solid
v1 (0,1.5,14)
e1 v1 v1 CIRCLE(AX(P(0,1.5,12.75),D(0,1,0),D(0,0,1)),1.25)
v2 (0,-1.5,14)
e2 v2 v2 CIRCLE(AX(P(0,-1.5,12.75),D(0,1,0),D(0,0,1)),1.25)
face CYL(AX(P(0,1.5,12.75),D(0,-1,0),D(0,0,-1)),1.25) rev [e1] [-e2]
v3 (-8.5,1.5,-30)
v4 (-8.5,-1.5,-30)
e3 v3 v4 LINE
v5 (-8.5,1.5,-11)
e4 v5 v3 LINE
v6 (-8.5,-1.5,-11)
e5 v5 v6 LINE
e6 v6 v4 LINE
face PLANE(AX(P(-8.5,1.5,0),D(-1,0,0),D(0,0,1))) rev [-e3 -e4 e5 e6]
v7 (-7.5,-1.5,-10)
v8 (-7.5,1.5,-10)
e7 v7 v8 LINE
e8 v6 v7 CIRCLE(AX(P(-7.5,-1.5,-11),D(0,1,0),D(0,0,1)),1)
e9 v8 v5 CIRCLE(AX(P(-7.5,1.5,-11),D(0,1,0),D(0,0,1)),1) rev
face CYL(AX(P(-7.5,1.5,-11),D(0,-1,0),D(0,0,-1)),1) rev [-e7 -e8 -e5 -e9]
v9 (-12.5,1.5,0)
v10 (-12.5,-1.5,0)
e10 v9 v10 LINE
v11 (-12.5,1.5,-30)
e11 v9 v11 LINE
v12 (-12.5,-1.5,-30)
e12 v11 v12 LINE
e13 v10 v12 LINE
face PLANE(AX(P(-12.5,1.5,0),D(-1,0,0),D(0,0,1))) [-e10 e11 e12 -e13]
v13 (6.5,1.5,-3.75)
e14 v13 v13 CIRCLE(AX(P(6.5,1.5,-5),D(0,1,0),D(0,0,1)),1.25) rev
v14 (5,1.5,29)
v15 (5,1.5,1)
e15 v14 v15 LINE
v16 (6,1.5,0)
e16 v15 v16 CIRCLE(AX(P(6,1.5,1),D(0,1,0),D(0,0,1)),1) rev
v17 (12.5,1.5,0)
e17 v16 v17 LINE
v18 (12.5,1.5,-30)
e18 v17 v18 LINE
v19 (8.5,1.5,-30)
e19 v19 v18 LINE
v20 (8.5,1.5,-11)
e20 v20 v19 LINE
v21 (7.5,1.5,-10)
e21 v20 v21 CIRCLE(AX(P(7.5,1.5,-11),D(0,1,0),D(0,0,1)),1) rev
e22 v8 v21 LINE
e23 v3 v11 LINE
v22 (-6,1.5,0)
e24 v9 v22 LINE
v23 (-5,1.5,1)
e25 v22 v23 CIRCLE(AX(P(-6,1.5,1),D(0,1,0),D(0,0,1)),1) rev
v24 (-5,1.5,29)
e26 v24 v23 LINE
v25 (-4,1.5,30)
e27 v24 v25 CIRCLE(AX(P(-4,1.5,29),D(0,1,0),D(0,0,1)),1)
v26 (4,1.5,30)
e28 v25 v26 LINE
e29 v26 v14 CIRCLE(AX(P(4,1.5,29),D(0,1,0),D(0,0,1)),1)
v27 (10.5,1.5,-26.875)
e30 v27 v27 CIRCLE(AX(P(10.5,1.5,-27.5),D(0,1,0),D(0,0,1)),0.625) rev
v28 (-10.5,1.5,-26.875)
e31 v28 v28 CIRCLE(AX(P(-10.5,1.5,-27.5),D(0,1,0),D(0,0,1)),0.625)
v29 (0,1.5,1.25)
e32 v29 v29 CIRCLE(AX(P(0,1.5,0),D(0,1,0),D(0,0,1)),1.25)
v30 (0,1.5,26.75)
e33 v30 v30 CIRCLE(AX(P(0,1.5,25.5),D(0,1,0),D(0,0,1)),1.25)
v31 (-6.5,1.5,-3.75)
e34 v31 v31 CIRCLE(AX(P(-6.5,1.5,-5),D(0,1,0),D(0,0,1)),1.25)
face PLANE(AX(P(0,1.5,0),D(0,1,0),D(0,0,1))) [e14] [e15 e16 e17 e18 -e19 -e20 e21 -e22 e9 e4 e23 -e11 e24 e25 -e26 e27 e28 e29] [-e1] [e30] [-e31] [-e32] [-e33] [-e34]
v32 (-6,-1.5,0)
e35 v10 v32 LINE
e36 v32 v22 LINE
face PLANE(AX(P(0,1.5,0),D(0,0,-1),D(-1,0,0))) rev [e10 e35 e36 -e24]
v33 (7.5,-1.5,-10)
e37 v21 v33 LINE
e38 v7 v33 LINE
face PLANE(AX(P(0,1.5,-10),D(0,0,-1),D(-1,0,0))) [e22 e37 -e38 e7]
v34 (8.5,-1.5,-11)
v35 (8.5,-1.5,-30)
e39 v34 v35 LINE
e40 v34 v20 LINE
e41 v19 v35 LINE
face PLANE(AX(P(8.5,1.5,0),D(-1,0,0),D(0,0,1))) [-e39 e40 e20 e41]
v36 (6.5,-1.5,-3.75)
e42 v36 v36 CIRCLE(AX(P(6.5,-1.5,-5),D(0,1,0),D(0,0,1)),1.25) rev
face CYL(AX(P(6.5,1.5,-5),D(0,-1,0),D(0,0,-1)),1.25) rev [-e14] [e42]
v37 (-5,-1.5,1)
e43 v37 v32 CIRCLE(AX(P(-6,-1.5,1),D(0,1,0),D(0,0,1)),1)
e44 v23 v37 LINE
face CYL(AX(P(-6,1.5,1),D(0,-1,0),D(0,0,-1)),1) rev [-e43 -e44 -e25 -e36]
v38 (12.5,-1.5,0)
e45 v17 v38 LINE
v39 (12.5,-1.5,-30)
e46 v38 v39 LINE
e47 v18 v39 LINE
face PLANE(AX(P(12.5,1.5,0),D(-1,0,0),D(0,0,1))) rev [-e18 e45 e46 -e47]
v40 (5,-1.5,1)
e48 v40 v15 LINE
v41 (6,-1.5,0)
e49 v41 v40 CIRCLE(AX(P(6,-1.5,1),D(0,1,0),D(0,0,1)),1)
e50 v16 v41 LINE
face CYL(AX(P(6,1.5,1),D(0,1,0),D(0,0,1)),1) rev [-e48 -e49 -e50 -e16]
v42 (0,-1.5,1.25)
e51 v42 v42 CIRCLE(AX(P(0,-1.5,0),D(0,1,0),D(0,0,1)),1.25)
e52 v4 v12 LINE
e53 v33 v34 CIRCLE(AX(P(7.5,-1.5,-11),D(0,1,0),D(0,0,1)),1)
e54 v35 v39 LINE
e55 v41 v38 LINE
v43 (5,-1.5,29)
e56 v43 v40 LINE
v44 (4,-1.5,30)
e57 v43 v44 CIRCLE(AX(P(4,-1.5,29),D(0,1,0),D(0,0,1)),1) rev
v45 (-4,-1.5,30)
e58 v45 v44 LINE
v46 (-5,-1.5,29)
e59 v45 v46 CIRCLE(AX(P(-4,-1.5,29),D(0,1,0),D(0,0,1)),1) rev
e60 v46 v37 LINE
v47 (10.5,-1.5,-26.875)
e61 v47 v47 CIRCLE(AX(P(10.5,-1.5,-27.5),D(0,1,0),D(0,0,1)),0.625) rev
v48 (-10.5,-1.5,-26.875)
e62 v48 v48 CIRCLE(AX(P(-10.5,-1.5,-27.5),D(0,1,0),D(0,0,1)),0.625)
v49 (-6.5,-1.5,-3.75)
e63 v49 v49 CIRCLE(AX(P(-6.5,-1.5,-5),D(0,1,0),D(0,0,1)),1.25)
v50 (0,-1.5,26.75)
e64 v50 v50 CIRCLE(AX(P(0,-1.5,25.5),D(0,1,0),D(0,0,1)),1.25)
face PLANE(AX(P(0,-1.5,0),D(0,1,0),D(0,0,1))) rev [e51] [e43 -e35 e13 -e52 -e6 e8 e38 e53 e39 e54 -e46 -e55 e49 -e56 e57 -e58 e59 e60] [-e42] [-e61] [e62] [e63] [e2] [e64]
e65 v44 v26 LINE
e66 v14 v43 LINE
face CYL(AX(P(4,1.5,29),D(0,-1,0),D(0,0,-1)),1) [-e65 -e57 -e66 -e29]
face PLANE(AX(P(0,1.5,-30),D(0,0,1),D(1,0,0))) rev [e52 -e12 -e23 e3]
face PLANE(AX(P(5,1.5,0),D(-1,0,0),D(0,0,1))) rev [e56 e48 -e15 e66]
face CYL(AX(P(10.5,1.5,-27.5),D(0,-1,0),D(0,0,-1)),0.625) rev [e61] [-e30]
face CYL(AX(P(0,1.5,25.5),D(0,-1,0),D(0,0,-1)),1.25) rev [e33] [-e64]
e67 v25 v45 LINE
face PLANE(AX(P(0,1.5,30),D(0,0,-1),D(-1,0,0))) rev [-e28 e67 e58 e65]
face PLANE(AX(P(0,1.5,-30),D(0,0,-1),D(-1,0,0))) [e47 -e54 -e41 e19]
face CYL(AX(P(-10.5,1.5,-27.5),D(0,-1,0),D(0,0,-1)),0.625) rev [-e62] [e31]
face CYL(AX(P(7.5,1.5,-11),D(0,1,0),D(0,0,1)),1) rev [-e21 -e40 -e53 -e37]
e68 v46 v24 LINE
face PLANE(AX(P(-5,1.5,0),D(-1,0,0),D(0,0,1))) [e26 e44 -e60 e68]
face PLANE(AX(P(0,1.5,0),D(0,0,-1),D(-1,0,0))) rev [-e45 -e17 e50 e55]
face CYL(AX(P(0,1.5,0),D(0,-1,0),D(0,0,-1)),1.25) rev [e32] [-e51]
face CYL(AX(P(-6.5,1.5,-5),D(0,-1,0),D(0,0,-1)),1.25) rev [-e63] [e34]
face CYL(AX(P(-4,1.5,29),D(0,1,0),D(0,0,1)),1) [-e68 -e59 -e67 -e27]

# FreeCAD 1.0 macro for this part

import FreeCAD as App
import Part
import Sketcher

V = App.Vector


def edges_at(feature, points):
    """Names of the edges that pass closest to the given points."""
    edges = feature.Shape.Edges
    near = lambda p: min(range(len(edges)), key=lambda i: edges[i].distToShape(Part.Vertex(*p))[0])
    return sorted({f"Edge{near(p) + 1}" for p in points})

doc = App.newDocument("Part")
params = doc.addObject("Spreadsheet::Sheet", "Params")
for row, (alias, value) in enumerate([
    ("sketch1_diameter", "2.5 mm"),
    ("sketch1_diameter2", "1.25 mm"),
    ("sketch1_width", "10 mm"),
    ("sketch1_width2", "4 mm"),
    ("sketch1_width3", "17 mm"),
    ("pad1_length", "3 mm"),
    ("fillet_radius", "1 mm"),
], start=1):
    params.set(f"A{row}", alias)
    params.set(f"B{row}", "=" + value)
    params.setAlias(f"B{row}", alias)

body = doc.addObject("PartDesign::Body", "Body")

# Sketch on XZ plane
sketch1 = body.newObject("Sketcher::SketchObject", "Sketch")
sketch1.AttachmentSupport = (doc.getObject("XZ_Plane"), [""])
sketch1.MapMode = "FlatFace"
sketch1.addGeometry(Part.LineSegment(V(-5, 0, 0), V(-5, 30, 0)), False)
sketch1.addGeometry(Part.LineSegment(V(-5, 30, 0), V(5, 30, 0)), False)
sketch1.addGeometry(Part.LineSegment(V(5, 30, 0), V(5, 0, 0)), False)
sketch1.addGeometry(Part.LineSegment(V(5, 0, 0), V(12.5, 0, 0)), False)
sketch1.addGeometry(Part.LineSegment(V(12.5, 0, 0), V(12.5, -30, 0)), False)
sketch1.addGeometry(Part.LineSegment(V(12.5, -30, 0), V(8.5, -30, 0)), False)
sketch1.addGeometry(Part.LineSegment(V(8.5, -30, 0), V(8.5, -10, 0)), False)
sketch1.addGeometry(Part.LineSegment(V(8.5, -10, 0), V(-8.5, -10, 0)), False)
sketch1.addGeometry(Part.LineSegment(V(-8.5, -10, 0), V(-8.5, -30, 0)), False)
sketch1.addGeometry(Part.LineSegment(V(-8.5, -30, 0), V(-12.5, -30, 0)), False)
sketch1.addGeometry(Part.LineSegment(V(-12.5, -30, 0), V(-12.5, 0, 0)), False)
sketch1.addGeometry(Part.LineSegment(V(-12.5, 0, 0), V(-5, 0, 0)), False)
sketch1.addGeometry(Part.Circle(V(0, 25.5, 0), V(0, 0, 1), 1.25), False)
sketch1.addGeometry(Part.Circle(V(0, 12.75, 0), V(0, 0, 1), 1.25), False)
sketch1.addGeometry(Part.Circle(V(0, 0, 0), V(0, 0, 1), 1.25), False)
sketch1.addGeometry(Part.Circle(V(-6.5, -5, 0), V(0, 0, 1), 1.25), False)
sketch1.addGeometry(Part.Circle(V(-10.5, -27.5, 0), V(0, 0, 1), 0.625), False)
sketch1.addGeometry(Part.Circle(V(6.5, -5, 0), V(0, 0, 1), 1.25), False)
sketch1.addGeometry(Part.Circle(V(10.5, -27.5, 0), V(0, 0, 1), 0.625), False)
sketch1.addConstraint(Sketcher.Constraint("Coincident", 0, 2, 1, 1))
sketch1.addConstraint(Sketcher.Constraint("Coincident", 1, 2, 2, 1))
sketch1.addConstraint(Sketcher.Constraint("Coincident", 2, 2, 3, 1))
sketch1.addConstraint(Sketcher.Constraint("Coincident", 3, 2, 4, 1))
sketch1.addConstraint(Sketcher.Constraint("Coincident", 4, 2, 5, 1))
sketch1.addConstraint(Sketcher.Constraint("Coincident", 5, 2, 6, 1))
sketch1.addConstraint(Sketcher.Constraint("Coincident", 6, 2, 7, 1))
sketch1.addConstraint(Sketcher.Constraint("Coincident", 7, 2, 8, 1))
sketch1.addConstraint(Sketcher.Constraint("Coincident", 8, 2, 9, 1))
sketch1.addConstraint(Sketcher.Constraint("Coincident", 9, 2, 10, 1))
sketch1.addConstraint(Sketcher.Constraint("Coincident", 10, 2, 11, 1))
sketch1.addConstraint(Sketcher.Constraint("Coincident", 11, 2, 0, 1))
sketch1.addConstraint(Sketcher.Constraint("Vertical", 0))
sketch1.addConstraint(Sketcher.Constraint("Horizontal", 1))
sketch1.addConstraint(Sketcher.Constraint("Vertical", 2))
sketch1.addConstraint(Sketcher.Constraint("Horizontal", 3))
sketch1.addConstraint(Sketcher.Constraint("Vertical", 4))
sketch1.addConstraint(Sketcher.Constraint("Horizontal", 5))
sketch1.addConstraint(Sketcher.Constraint("Vertical", 6))
sketch1.addConstraint(Sketcher.Constraint("Horizontal", 7))
sketch1.addConstraint(Sketcher.Constraint("Vertical", 8))
sketch1.addConstraint(Sketcher.Constraint("Horizontal", 9))
sketch1.addConstraint(Sketcher.Constraint("Vertical", 10))
sketch1.addConstraint(Sketcher.Constraint("Horizontal", 11))
sketch1.addConstraint(Sketcher.Constraint("Coincident", 14, 3, -1, 1))
sketch1.addConstraint(Sketcher.Constraint("Equal", 12, 13))
sketch1.addConstraint(Sketcher.Constraint("Equal", 13, 14))
sketch1.addConstraint(Sketcher.Constraint("Equal", 14, 15))
sketch1.addConstraint(Sketcher.Constraint("Equal", 15, 17))
sketch1.addConstraint(Sketcher.Constraint("Equal", 16, 18))
sketch1.addConstraint(Sketcher.Constraint("Symmetric", 3, 2, 10, 2, -1, 1))
sketch1.addConstraint(Sketcher.Constraint("Symmetric", 15, 3, 17, 3, -2))
sketch1.addConstraint(Sketcher.Constraint("Symmetric", 16, 3, 18, 3, -2))
sketch1.addConstraint(Sketcher.Constraint("Symmetric", 5, 2, 8, 2, -2))
sketch1.addConstraint(Sketcher.Constraint("Symmetric", 2, 2, 11, 2, -2))
sketch1.addConstraint(Sketcher.Constraint("PointOnObject", 12, 3, -2))
sketch1.addConstraint(Sketcher.Constraint("PointOnObject", 13, 3, -2))
sketch1.addConstraint(Sketcher.Constraint("Equal", 2, 4))
sketch1.addConstraint(Sketcher.Constraint("Diameter", 12, 2.5))
sketch1.addConstraint(Sketcher.Constraint("Diameter", 16, 1.25))
sketch1.addConstraint(Sketcher.Constraint("DistanceX", 1, 1, 1, 2, 10.0))
sketch1.addConstraint(Sketcher.Constraint("DistanceX", 5, 2, 5, 1, 4.0))
sketch1.addConstraint(Sketcher.Constraint("DistanceX", 7, 2, 7, 1, 17.0))
sketch1.addConstraint(Sketcher.Constraint("DistanceY", 0, 1, 0, 2, 30.0))
sketch1.addConstraint(Sketcher.Constraint("DistanceY", 6, 1, 6, 2, 20.0))
sketch1.addConstraint(Sketcher.Constraint("DistanceY", 15, 3, -1, 1, 5.0))
sketch1.addConstraint(Sketcher.Constraint("DistanceX", 16, 3, 15, 3, 4.0))
sketch1.addConstraint(Sketcher.Constraint("DistanceY", 16, 3, 12, 3, 53.0))
sketch1.addConstraint(Sketcher.Constraint("DistanceX", 15, 3, 17, 3, 13.0))
sketch1.addConstraint(Sketcher.Constraint("DistanceY", -1, 1, 12, 3, 25.5))
sketch1.addConstraint(Sketcher.Constraint("DistanceY", -1, 1, 13, 3, 12.75))
sketch1.setExpression("Constraints[38]", "Params.sketch1_diameter")
sketch1.setExpression("Constraints[39]", "Params.sketch1_diameter2")
sketch1.setExpression("Constraints[40]", "Params.sketch1_width")
sketch1.setExpression("Constraints[41]", "Params.sketch1_width2")
sketch1.setExpression("Constraints[42]", "Params.sketch1_width3")
pad1 = body.newObject("PartDesign::Pad", "Pad")
pad1.Profile = sketch1
pad1.setExpression("Length", "Params.pad1_length")
pad1.Midplane = True
doc.recompute()

fillet = body.newObject("PartDesign::Fillet", "Fillet")
fillet.Base = (pad1, edges_at(pad1, [
    (8.5, 0, -10),
    (5, 0, 0),
    (5, 0, 30),
    (-5, 0, 30),
    (-5, 0, 0),
    (-8.5, 0, -10),
]))
fillet.setExpression("Radius", "Params.fillet_radius")

doc.recompute()
